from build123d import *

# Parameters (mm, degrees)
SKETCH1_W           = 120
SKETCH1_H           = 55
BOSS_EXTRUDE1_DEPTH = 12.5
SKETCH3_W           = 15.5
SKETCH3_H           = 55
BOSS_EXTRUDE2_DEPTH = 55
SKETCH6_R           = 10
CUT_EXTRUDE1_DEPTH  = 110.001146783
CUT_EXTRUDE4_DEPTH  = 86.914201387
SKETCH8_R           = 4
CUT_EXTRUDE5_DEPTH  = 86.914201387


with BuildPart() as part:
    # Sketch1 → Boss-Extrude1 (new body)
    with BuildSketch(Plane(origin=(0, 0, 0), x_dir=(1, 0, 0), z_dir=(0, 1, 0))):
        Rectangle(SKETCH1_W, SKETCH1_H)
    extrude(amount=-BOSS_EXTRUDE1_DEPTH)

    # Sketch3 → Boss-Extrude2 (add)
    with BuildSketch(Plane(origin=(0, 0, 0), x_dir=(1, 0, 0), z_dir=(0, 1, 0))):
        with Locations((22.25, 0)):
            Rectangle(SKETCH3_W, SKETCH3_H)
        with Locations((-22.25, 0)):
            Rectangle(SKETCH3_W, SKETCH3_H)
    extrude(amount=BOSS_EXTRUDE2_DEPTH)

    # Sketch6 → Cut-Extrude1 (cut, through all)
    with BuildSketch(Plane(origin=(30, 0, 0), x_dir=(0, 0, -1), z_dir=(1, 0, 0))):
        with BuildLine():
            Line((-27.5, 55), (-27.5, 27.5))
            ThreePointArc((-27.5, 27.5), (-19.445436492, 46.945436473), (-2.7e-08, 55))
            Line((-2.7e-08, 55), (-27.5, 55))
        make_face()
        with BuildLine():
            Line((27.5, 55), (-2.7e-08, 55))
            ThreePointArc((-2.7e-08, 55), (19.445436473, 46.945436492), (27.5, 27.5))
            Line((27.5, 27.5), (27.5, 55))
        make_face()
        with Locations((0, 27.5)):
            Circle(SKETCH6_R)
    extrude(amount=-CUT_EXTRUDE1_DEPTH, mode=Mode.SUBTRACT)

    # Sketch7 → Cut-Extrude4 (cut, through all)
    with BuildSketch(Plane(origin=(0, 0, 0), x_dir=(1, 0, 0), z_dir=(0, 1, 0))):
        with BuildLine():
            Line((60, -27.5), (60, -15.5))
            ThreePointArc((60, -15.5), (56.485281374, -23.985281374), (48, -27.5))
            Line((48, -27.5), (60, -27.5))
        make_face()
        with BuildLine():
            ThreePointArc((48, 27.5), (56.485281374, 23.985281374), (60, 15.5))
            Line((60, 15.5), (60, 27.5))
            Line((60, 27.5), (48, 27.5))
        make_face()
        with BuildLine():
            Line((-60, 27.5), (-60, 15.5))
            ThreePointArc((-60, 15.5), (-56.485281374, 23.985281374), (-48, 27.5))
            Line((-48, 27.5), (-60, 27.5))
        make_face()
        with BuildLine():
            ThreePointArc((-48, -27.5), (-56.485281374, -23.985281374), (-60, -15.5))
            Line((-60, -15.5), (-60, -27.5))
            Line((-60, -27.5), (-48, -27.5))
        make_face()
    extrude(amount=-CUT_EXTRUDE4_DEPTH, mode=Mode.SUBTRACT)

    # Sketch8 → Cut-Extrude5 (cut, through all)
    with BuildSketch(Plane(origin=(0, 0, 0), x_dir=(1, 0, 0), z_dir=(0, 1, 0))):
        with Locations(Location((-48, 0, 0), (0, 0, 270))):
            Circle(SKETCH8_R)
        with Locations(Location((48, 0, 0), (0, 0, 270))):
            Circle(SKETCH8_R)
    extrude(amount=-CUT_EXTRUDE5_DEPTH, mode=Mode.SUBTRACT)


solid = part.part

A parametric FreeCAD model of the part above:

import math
import FreeCAD as App
import Part
import Sketcher
Q = App.Units.Quantity


def add_polygon(sketch, points):
    """Adds a closed chain of lines whose ends are joined by coincident constraints."""
    first, n = sketch.GeometryCount, len(points)
    for a, b in zip(points, points[1:] + points[:1]):
        sketch.addGeometry(Part.LineSegment(App.Vector(*a, 0), App.Vector(*b, 0)), False)
    for i in range(n):
        sketch.addConstraint(Sketcher.Constraint("Coincident", first + i, 2, first + (i + 1) % n, 1))

doc = App.newDocument("Part")
body = doc.addObject("PartDesign::Body", "Body")

# Sketch on XZ plane
sketch1 = body.newObject("Sketcher::SketchObject", "Sketch")
sketch1.AttachmentSupport = (doc.getObject("XZ_Plane"), [""])
sketch1.MapMode = "FlatFace"
add_polygon(sketch1, [(-60, -28), (-60, 28), (60, 28), (60, -28)])  # lines 0-3
sketch1.addConstraint([
    Sketcher.Constraint("Vertical", 0),
    Sketcher.Constraint("Horizontal", 1),
    Sketcher.Constraint("Vertical", 2),
    Sketcher.Constraint("Horizontal", 3),
    Sketcher.Constraint("Symmetric", 0, 2, 2, 2, -1, 1),
    Sketcher.Constraint("DistanceX", 1, 1, 1, 2, Q("120 mm")),
    Sketcher.Constraint("DistanceY", 0, 1, 0, 2, Q("55 mm")),
])
pad1 = body.newObject("PartDesign::Pad", "Pad")
pad1.Profile = sketch1
pad1.Length = 12.5

# Sketch on XZ plane
sketch2 = body.newObject("Sketcher::SketchObject", "Sketch001")
sketch2.AttachmentSupport = (doc.getObject("XZ_Plane"), [""])
sketch2.MapMode = "FlatFace"
add_polygon(sketch2, [(14, -28), (14, 28), (30, 28), (30, -28)])  # lines 0-3
add_polygon(sketch2, [(-30, -28), (-30, 28), (-14, 28), (-14, -28)])  # lines 4-7
sketch2.addConstraint([
    Sketcher.Constraint("Vertical", 0),
    Sketcher.Constraint("Horizontal", 1),
    Sketcher.Constraint("Vertical", 2),
    Sketcher.Constraint("Horizontal", 3),
    Sketcher.Constraint("Vertical", 4),
    Sketcher.Constraint("Horizontal", 5),
    Sketcher.Constraint("Vertical", 6),
    Sketcher.Constraint("Horizontal", 7),
    Sketcher.Constraint("Symmetric", 2, 2, 4, 2, -1, 1),
    Sketcher.Constraint("Symmetric", 0, 2, 6, 2, -1, 1),
    Sketcher.Constraint("Horizontal", 1, 2, 4, 2),
    Sketcher.Constraint("DistanceY", 0, 1, 0, 2, Q("55 mm")),
    Sketcher.Constraint("DistanceX", 1, 1, 1, 2, Q("15.5 mm")),
    Sketcher.Constraint("DistanceX", -1, 1, 1, 2, Q("30 mm")),
])
pad2 = body.newObject("PartDesign::Pad", "Pad001")
pad2.Profile = sketch2
pad2.Length = 55
pad2.Reversed = True

# Sketch on YZ plane
sketch3 = body.newObject("Sketcher::SketchObject", "Sketch002")
sketch3.AttachmentSupport = (doc.getObject("YZ_Plane"), [""])
sketch3.MapMode = "FlatFace"
sketch3.AttachmentOffset = App.Placement(App.Vector(0, 0, 30), App.Rotation())
sketch3.addGeometry([
    Part.LineSegment(App.Vector(55, 28, 0), App.Vector(28, 28, 0)),  # 0
    Part.ArcOfCircle(Part.Circle(App.Vector(28, 0, 0), App.Vector(0, 0, 1), 28), math.radians(0), math.radians(90)),  # 1
    Part.LineSegment(App.Vector(55, 0, 0), App.Vector(55, 28, 0)),  # 2
    Part.LineSegment(App.Vector(55, -28, 0), App.Vector(55, 0, 0)),  # 3
    Part.ArcOfCircle(Part.Circle(App.Vector(28, 0, 0), App.Vector(0, 0, 1), 28), math.radians(-90), math.radians(0)),  # 4
    Part.LineSegment(App.Vector(28, -28, 0), App.Vector(55, -28, 0)),  # 5
    Part.Circle(App.Vector(28, 0, 0), App.Vector(0, 0, 1), 10),  # 6
], False)
sketch3.addConstraint([
    Sketcher.Constraint("Tangent", 0, 2, 1, 2),
    Sketcher.Constraint("Tangent", 1, 1, 2, 1),
    Sketcher.Constraint("Coincident", 2, 2, 0, 1),
    Sketcher.Constraint("Tangent", 3, 2, 4, 2),
    Sketcher.Constraint("Tangent", 4, 1, 5, 1),
    Sketcher.Constraint("Coincident", 5, 2, 3, 1),
    Sketcher.Constraint("Horizontal", 0),
    Sketcher.Constraint("Vertical", 2),
    Sketcher.Constraint("Vertical", 3),
    Sketcher.Constraint("Horizontal", 5),
    Sketcher.Constraint("Coincident", 4, 3, 1, 3),
    Sketcher.Constraint("Coincident", 6, 3, 1, 3),
    Sketcher.Constraint("Equal", 1, 4),
    Sketcher.Constraint("PointOnObject", 1, 3, -1),
    Sketcher.Constraint("Diameter", 6, Q("20 mm")),
    Sketcher.Constraint("Radius", 1, Q("27.5 mm")),
    Sketcher.Constraint("DistanceX", -1, 1, 1, 1, Q("55 mm")),
])
pocket1 = body.newObject("PartDesign::Pocket", "Pocket")
pocket1.Profile = sketch3
pocket1.Type = "ThroughAll"

# Sketch on XZ plane
sketch4 = body.newObject("Sketcher::SketchObject", "Sketch003")
sketch4.AttachmentSupport = (doc.getObject("XZ_Plane"), [""])
sketch4.MapMode = "FlatFace"
sketch4.addGeometry([
    Part.LineSegment(App.Vector(60, 28, 0), App.Vector(60, 16, 0)),  # 0
    Part.ArcOfCircle(Part.Circle(App.Vector(48, 15, 0), App.Vector(0, 0, 1), 12), math.radians(0), math.radians(90)),  # 1
    Part.LineSegment(App.Vector(48, 28, 0), App.Vector(60, 28, 0)),  # 2
    Part.ArcOfCircle(Part.Circle(App.Vector(48, -15, 0), App.Vector(0, 0, 1), 12), math.radians(-90), math.radians(0)),  # 3
    Part.LineSegment(App.Vector(60, -16, 0), App.Vector(60, -28, 0)),  # 4
    Part.LineSegment(App.Vector(60, -28, 0), App.Vector(48, -28, 0)),  # 5
    Part.LineSegment(App.Vector(-60, -28, 0), App.Vector(-60, -16, 0)),  # 6
    Part.ArcOfCircle(Part.Circle(App.Vector(-48, -15, 0), App.Vector(0, 0, 1), 12), math.radians(-180), math.radians(-90)),  # 7
    Part.LineSegment(App.Vector(-48, -28, 0), App.Vector(-60, -28, 0)),  # 8
    Part.ArcOfCircle(Part.Circle(App.Vector(-48, 15, 0), App.Vector(0, 0, 1), 12), math.radians(90), math.radians(180)),  # 9
    Part.LineSegment(App.Vector(-60, 16, 0), App.Vector(-60, 28, 0)),  # 10
    Part.LineSegment(App.Vector(-60, 28, 0), App.Vector(-48, 28, 0)),  # 11
], False)
sketch4.addConstraint([
    Sketcher.Constraint("Tangent", 0, 2, 1, 1),
    Sketcher.Constraint("Tangent", 1, 2, 2, 1),
    Sketcher.Constraint("Coincident", 2, 2, 0, 1),
    Sketcher.Constraint("Tangent", 3, 2, 4, 1),
    Sketcher.Constraint("Coincident", 4, 2, 5, 1),
    Sketcher.Constraint("Tangent", 5, 2, 3, 1),
    Sketcher.Constraint("Tangent", 6, 2, 7, 1),
    Sketcher.Constraint("Tangent", 7, 2, 8, 1),
    Sketcher.Constraint("Coincident", 8, 2, 6, 1),
    Sketcher.Constraint("Tangent", 9, 2, 10, 1),
    Sketcher.Constraint("Coincident", 10, 2, 11, 1),
    Sketcher.Constraint("Tangent", 11, 2, 9, 1),
    Sketcher.Constraint("Vertical", 0),
    Sketcher.Constraint("Horizontal", 2),
    Sketcher.Constraint("Vertical", 4),
    Sketcher.Constraint("Horizontal", 5),
    Sketcher.Constraint("Vertical", 6),
    Sketcher.Constraint("Horizontal", 8),
    Sketcher.Constraint("Vertical", 10),
    Sketcher.Constraint("Horizontal", 11),
    Sketcher.Constraint("Equal", 1, 3),
    Sketcher.Constraint("Equal", 3, 7),
    Sketcher.Constraint("Equal", 7, 9),
    Sketcher.Constraint("Symmetric", 1, 3, 7, 3, -1, 1),
    Sketcher.Constraint("Symmetric", 3, 3, 9, 3, -1, 1),
    Sketcher.Constraint("Symmetric", 3, 3, 7, 3, -2),
    Sketcher.Constraint("Radius", 1, Q("12 mm")),
    Sketcher.Constraint("DistanceX", -1, 1, 1, 3, Q("48 mm")),
    Sketcher.Constraint("DistanceY", 3, 3, 1, 3, Q("31 mm")),
])
pocket2 = body.newObject("PartDesign::Pocket", "Pocket001")
pocket2.Profile = sketch4
pocket2.Type = "ThroughAll"
pocket2.Reversed = True

# Sketch on XZ plane
sketch5 = body.newObject("Sketcher::SketchObject", "Sketch004")
sketch5.AttachmentSupport = (doc.getObject("XZ_Plane"), [""])
sketch5.MapMode = "FlatFace"
sketch5.addGeometry([
    Part.Circle(App.Vector(-48, 0, 0), App.Vector(0, 0, 1), 4),
    Part.Circle(App.Vector(48, 0, 0), App.Vector(0, 0, 1), 4),
], False)
sketch5.addConstraint([
    Sketcher.Constraint("Equal", 0, 1),
    Sketcher.Constraint("Symmetric", 0, 3, 1, 3, -1, 1),
    Sketcher.Constraint("PointOnObject", 0, 3, -1),
    Sketcher.Constraint("Diameter", 0, Q("8 mm")),
    Sketcher.Constraint("DistanceX", 0, 3, -1, 1, Q("48 mm")),
])
pocket3 = body.newObject("PartDesign::Pocket", "Pocket002")
pocket3.Profile = sketch5
pocket3.Type = "ThroughAll"
pocket3.Reversed = True

doc.recompute()
